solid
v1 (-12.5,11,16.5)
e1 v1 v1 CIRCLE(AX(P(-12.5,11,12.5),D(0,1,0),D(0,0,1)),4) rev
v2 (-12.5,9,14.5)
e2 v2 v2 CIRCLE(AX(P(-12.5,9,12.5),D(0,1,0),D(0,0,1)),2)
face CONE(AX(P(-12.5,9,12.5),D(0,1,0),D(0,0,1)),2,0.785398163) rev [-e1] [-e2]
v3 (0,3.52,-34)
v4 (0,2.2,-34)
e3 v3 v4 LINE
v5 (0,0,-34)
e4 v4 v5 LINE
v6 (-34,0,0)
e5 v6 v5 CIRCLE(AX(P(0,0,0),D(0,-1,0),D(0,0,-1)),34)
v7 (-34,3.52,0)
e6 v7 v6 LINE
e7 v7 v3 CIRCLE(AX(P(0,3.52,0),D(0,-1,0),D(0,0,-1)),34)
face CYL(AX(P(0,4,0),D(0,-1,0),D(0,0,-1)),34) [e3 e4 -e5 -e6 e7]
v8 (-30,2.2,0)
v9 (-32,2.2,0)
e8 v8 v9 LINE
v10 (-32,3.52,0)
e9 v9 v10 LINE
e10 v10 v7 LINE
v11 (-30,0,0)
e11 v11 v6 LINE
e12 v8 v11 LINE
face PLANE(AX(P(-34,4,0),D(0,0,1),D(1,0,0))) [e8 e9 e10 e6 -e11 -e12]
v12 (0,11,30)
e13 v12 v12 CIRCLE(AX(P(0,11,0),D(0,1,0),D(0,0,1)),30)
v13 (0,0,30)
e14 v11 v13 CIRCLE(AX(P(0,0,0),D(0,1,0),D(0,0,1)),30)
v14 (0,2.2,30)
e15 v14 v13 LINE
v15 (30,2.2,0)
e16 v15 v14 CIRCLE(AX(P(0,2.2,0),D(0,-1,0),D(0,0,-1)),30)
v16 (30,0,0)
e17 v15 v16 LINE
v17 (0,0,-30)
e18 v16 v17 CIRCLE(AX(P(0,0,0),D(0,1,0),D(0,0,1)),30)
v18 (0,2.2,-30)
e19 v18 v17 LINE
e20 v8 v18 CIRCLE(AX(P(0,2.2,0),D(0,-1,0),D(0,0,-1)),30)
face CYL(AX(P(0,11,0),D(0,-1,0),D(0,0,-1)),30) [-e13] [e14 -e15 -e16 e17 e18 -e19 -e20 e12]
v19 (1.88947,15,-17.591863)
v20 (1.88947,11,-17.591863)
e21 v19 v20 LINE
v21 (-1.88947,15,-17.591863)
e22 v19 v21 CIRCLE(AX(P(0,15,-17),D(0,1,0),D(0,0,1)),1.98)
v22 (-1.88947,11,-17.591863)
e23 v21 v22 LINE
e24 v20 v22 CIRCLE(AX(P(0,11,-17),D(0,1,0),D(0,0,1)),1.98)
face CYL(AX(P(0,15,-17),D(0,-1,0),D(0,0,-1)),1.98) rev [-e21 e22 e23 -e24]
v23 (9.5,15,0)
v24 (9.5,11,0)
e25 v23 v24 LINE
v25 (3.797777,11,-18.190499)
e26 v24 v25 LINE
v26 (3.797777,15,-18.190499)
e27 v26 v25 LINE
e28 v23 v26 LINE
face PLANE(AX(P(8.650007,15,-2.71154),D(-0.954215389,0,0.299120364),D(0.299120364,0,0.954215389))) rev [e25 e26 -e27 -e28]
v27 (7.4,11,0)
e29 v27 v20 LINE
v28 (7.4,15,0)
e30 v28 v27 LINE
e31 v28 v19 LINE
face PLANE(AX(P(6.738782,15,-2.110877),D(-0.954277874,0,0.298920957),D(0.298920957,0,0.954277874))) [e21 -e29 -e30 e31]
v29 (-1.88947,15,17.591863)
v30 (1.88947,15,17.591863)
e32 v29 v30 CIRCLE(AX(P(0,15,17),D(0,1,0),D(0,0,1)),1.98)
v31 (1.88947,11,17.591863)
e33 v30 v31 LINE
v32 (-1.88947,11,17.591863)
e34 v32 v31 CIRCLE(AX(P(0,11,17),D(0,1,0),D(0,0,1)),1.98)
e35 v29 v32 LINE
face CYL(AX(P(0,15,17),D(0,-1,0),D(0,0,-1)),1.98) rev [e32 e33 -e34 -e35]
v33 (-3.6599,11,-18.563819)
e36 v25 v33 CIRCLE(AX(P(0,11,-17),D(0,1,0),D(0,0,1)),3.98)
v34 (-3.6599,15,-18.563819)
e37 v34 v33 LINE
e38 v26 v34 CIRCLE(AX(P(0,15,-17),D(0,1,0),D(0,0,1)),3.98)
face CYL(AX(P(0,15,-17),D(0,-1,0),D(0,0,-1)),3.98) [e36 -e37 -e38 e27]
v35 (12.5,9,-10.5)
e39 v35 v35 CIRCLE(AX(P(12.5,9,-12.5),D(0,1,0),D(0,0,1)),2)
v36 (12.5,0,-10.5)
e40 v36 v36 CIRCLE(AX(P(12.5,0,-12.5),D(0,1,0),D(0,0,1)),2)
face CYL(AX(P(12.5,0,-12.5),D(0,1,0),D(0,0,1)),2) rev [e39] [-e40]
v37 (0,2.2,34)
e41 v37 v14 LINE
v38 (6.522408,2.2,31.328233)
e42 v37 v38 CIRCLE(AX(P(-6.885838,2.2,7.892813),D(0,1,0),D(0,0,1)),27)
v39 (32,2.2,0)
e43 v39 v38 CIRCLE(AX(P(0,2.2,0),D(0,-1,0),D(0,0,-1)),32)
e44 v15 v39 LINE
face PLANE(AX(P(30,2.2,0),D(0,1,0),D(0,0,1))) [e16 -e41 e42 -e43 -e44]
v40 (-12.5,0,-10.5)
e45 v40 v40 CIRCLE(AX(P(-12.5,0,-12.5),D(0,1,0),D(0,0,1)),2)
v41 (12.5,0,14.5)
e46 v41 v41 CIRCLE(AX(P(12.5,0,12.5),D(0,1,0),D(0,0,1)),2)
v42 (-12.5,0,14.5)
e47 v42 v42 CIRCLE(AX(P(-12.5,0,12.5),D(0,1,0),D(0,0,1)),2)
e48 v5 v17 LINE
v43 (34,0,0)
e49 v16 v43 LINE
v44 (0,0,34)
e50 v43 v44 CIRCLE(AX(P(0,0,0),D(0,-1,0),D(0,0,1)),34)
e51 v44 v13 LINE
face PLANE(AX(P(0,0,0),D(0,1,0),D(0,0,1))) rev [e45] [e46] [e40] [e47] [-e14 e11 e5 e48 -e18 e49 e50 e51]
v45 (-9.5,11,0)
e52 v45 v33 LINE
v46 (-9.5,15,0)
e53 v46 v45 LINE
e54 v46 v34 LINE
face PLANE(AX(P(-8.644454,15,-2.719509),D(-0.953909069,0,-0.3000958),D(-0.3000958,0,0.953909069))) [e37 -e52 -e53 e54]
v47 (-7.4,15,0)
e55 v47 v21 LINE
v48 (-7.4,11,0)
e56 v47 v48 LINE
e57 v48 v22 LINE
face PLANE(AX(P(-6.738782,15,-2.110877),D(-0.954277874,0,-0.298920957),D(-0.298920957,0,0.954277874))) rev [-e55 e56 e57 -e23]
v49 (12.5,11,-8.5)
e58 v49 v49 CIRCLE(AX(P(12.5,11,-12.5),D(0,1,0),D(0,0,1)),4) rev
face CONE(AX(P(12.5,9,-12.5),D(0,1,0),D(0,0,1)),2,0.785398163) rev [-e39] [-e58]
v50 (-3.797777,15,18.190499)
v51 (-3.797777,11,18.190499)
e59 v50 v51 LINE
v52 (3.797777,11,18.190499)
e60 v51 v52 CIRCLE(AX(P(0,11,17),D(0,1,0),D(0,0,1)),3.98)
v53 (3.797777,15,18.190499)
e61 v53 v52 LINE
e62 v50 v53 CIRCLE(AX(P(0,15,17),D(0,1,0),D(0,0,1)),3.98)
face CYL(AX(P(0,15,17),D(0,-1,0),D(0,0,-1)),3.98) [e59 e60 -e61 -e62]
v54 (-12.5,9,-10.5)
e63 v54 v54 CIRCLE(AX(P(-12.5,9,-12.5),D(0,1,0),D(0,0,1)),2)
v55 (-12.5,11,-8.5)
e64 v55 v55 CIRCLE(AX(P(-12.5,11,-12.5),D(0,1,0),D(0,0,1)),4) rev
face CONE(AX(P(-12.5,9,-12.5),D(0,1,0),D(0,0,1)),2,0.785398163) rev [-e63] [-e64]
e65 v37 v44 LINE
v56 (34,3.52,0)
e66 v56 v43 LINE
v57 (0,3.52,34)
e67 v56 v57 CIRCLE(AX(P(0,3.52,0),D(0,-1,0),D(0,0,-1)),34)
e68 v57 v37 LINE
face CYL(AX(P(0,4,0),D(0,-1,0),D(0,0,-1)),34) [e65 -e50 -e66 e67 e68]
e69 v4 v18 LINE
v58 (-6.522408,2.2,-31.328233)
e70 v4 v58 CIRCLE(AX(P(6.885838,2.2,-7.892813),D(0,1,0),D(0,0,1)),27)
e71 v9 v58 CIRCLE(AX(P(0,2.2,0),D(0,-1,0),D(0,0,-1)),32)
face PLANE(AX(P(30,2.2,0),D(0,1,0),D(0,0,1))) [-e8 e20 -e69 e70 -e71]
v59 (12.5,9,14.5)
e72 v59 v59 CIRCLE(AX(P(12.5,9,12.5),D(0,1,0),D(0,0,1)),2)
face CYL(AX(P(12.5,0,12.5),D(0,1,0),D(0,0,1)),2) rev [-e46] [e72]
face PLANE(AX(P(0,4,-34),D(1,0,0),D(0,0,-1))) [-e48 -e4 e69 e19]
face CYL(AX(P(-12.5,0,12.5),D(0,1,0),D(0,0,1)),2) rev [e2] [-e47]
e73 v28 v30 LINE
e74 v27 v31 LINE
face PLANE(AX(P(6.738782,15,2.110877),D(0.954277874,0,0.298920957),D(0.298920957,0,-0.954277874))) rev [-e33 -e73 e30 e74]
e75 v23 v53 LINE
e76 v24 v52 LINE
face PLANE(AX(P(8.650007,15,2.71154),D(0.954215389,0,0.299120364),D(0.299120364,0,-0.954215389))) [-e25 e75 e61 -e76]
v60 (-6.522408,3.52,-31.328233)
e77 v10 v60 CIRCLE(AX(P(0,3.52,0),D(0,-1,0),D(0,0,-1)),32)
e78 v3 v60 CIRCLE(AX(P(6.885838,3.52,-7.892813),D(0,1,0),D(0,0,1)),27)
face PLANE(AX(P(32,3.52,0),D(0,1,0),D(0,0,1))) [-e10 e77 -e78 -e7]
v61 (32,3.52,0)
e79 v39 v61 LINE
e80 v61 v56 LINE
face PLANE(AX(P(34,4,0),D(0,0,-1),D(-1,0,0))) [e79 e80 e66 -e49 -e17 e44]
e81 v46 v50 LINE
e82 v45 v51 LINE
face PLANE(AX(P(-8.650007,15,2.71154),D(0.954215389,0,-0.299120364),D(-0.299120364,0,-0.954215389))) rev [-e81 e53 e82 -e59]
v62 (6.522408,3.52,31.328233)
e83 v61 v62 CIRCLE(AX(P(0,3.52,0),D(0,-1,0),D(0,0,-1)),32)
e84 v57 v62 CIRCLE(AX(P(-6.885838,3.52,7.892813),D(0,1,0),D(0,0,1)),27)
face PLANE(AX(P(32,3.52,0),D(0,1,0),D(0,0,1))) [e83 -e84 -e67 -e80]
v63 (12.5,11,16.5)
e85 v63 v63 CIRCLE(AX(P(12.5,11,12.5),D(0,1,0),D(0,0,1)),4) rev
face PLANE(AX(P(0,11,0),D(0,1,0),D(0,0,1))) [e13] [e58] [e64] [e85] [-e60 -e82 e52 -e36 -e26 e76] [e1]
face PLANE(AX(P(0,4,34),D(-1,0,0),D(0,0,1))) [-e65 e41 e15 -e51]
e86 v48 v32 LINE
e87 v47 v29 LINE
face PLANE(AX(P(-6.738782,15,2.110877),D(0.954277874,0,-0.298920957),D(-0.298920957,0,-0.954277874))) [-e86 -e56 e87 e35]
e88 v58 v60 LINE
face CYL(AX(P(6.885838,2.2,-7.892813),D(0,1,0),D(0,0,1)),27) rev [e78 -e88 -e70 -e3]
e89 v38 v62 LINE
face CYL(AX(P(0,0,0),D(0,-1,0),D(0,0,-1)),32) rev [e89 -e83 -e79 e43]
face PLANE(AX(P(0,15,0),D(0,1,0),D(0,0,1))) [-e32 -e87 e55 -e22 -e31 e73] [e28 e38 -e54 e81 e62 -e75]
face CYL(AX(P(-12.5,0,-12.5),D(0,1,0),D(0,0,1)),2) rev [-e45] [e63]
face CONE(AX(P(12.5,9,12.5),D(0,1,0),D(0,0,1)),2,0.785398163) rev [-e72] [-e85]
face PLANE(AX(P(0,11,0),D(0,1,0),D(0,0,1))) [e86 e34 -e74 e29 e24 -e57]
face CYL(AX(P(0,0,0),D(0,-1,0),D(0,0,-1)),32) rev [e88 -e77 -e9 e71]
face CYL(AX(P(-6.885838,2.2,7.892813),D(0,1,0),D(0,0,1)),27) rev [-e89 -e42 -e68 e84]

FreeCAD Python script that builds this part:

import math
import FreeCAD as App
import Part
import Sketcher

V = App.Vector


def edges_at(feature, points):
    """Names of the edges that pass closest to the given points."""
    edges = feature.Shape.Edges
    near = lambda p: min(range(len(edges)), key=lambda i: edges[i].distToShape(Part.Vertex(*p))[0])
    return sorted({f"Edge{near(p) + 1}" for p in points})


def add_polygon(sketch, points):
    """Adds a closed chain of lines whose ends are joined by coincident constraints."""
    first, n = sketch.GeometryCount, len(points)
    for a, b in zip(points, points[1:] + points[:1]):
        sketch.addGeometry(Part.LineSegment(App.Vector(*a, 0), App.Vector(*b, 0)), False)
    for i in range(n):
        sketch.addConstraint(Sketcher.Constraint("Coincident", first + i, 2, first + (i + 1) % n, 1))

doc = App.newDocument("Part")
body = doc.addObject("PartDesign::Body", "Body")

sketch1 = body.newObject("Sketcher::SketchObject", "Sketch")
sketch1.AttachmentSupport = (doc.getObject("XZ_Plane"), [""])
sketch1.MapMode = "FlatFace"
sketch1.addGeometry(Part.Circle(V(0, 0, 0), V(0, 0, 1), 30), False)
sketch1.addConstraint([
    Sketcher.Constraint("Coincident", 0, 3, -1, 1),
    Sketcher.Constraint("Diameter", 0, 60.0),
])
pad1 = body.newObject("PartDesign::Pad", "Pad")
pad1.Profile = sketch1
pad1.Length = 11
pad1.Reversed = True

sketch2 = body.newObject("Sketcher::SketchObject", "Sketch001")
sketch2.AttachmentSupport = (doc.getObject("XZ_Plane"), [""])
sketch2.MapMode = "FlatFace"
sketch2.addGeometry([
    Part.LineSegment(V(-30, 0, 0), V(-34, 0, 0)),
    Part.ArcOfCircle(Part.Circle(V(0, 0, 0), V(0, 0, 1), 34), math.radians(-180), math.radians(-90)),
    Part.LineSegment(V(0, -34, 0), V(0, -30, 0)),
    Part.ArcOfCircle(Part.Circle(V(0, 0, 0), V(0, 0, 1), 30), math.radians(180), math.radians(270)),
    Part.LineSegment(V(0, 34, 0), V(0, 30, 0)),
    Part.ArcOfCircle(Part.Circle(V(0, 0, 0), V(0, 0, 1), 30), math.radians(0), math.radians(90)),
    Part.LineSegment(V(30, 0, 0), V(34, 0, 0)),
    Part.ArcOfCircle(Part.Circle(V(0, 0, 0), V(0, 0, 1), 34), math.radians(0), math.radians(90)),
], False)
sketch2.addConstraint([
    Sketcher.Constraint("Coincident", 0, 2, 1, 1),
    Sketcher.Constraint("Coincident", 1, 2, 2, 1),
    Sketcher.Constraint("Coincident", 2, 2, 3, 2),
    Sketcher.Constraint("Coincident", 3, 1, 0, 1),
    Sketcher.Constraint("Coincident", 4, 2, 5, 2),
    Sketcher.Constraint("Coincident", 5, 1, 6, 1),
    Sketcher.Constraint("Coincident", 6, 2, 7, 1),
    Sketcher.Constraint("Coincident", 7, 2, 4, 1),
    Sketcher.Constraint("Horizontal", 0),
    Sketcher.Constraint("Vertical", 2),
    Sketcher.Constraint("Vertical", 4),
    Sketcher.Constraint("Horizontal", 6),
    Sketcher.Constraint("Coincident", 1, 3, -1, 1),
    Sketcher.Constraint("Coincident", 3, 3, -1, 1),
    Sketcher.Constraint("Coincident", 5, 3, -1, 1),
    Sketcher.Constraint("Coincident", 7, 3, -1, 1),
    Sketcher.Constraint("Equal", 3, 5),
    Sketcher.Constraint("Equal", 1, 7),
    Sketcher.Constraint("PointOnObject", 0, 2, -1),
    Sketcher.Constraint("PointOnObject", 1, 2, -2),
    Sketcher.Constraint("PointOnObject", 4, 2, -2),
    Sketcher.Constraint("PointOnObject", 5, 1, -1),
    Sketcher.Constraint("Radius", 1, 34.0),
    Sketcher.Constraint("Radius", 3, 30.0),
])
pad2 = body.newObject("PartDesign::Pad", "Pad001")
pad2.Profile = sketch2
pad2.Length = 4
pad2.Reversed = True

sketch3 = body.newObject("Sketcher::SketchObject", "Sketch002")
sketch3.AttachmentSupport = (doc.getObject("XY_Plane"), [""])
sketch3.MapMode = "FlatFace"
add_polygon(sketch3, [(32, 2.2), (30, 2.2), (30, 4), (34, 4), (34, 3.52), (32, 3.52)])
sketch3.addConstraint([
    Sketcher.Constraint("Horizontal", 0),
    Sketcher.Constraint("Vertical", 1),
    Sketcher.Constraint("Horizontal", 2),
    Sketcher.Constraint("Vertical", 3),
    Sketcher.Constraint("Horizontal", 4),
    Sketcher.Constraint("Vertical", 5),
    Sketcher.Constraint("Equal", 0, 4),
    Sketcher.Constraint("DistanceX", 0, 2, 0, 1, 2.0),
    Sketcher.Constraint("DistanceY", 1, 1, 1, 2, 1.8),
    Sketcher.Constraint("DistanceX", -1, 1, 0, 2, 30.0),
    Sketcher.Constraint("DistanceY", -1, 1, 1, 2, 4.0),
    Sketcher.Constraint("DistanceY", 3, 2, 3, 1, 0.48),
])
groove = body.newObject("PartDesign::Groove", "Groove")
groove.Profile = sketch3
groove.ReferenceAxis = (sketch3, ["V_Axis"])
groove.Angle = 360

sketch4 = body.newObject("Sketcher::SketchObject", "Sketch003")
sketch4.AttachmentSupport = (doc.getObject("XZ_Plane"), [""])
sketch4.MapMode = "FlatFace"
sketch4.AttachmentOffset = App.Placement(V(0, 0, -3.52), App.Rotation())
sketch4.addGeometry([
    Part.LineSegment(V(6.522408, 31.328233, 0), V(-2.191886, 31.444459, 0)),
    Part.LineSegment(V(-2.191886, 31.444459, 0), V(0, 34, 0)),
    Part.ArcOfCircle(Part.Circle(V(-6.885838, 7.892813, 0), V(0, 0, 1), 27), math.radians(60.224576), math.radians(75.224576)),
    Part.LineSegment(V(-6.522408, -31.328233, 0), V(2.581044, -31.031256, 0)),
    Part.LineSegment(V(2.581044, -31.031256, 0), V(0, -34, 0)),
    Part.ArcOfCircle(Part.Circle(V(6.885838, -7.892813, 0), V(0, 0, 1), 27), math.radians(-119.775424), math.radians(-104.775424)),
], False)
sketch4.addConstraint([
    Sketcher.Constraint("Coincident", 0, 2, 1, 1),
    Sketcher.Constraint("Coincident", 1, 2, 2, 2),
    Sketcher.Constraint("Coincident", 2, 1, 0, 1),
    Sketcher.Constraint("Coincident", 3, 2, 4, 1),
    Sketcher.Constraint("Coincident", 4, 2, 5, 2),
    Sketcher.Constraint("Coincident", 5, 1, 3, 1),
    Sketcher.Constraint("Equal", 2, 5),
    Sketcher.Constraint("Symmetric", 2, 3, 5, 3, -1, 1),
    Sketcher.Constraint("Symmetric", 1, 2, 4, 2, -1),
    Sketcher.Constraint("Radius", 2, 27.0),
    Sketcher.Constraint("DistanceY", -1, 1, 1, 2, 34.0),
    Sketcher.Constraint("Distance", 0, 8.715069),
    Sketcher.Constraint("DistanceY", -1, 1, 0, 2, 31.444459),
    Sketcher.Constraint("DistanceX", -1, 1, 2, 1, 6.522408),
    Sketcher.Constraint("DistanceX", 5, 1, -1, 1, 6.522408),
    Sketcher.Constraint("DistanceX", 2, 3, 0, 2, 4.693952),
    Sketcher.Constraint("DistanceY", 3, 2, 2, 3, 38.924069),
    Sketcher.Constraint("DistanceX", 0, 2, 3, 2, 4.77293),
])
pocket1 = body.newObject("PartDesign::Pocket", "Pocket")
pocket1.Profile = sketch4
pocket1.Length = 1.32
pocket1.Reversed = True

sketch5 = body.newObject("Sketcher::SketchObject", "Sketch004")
sketch5.AttachmentSupport = (doc.getObject("XZ_Plane"), [""])
sketch5.MapMode = "FlatFace"
sketch5.AttachmentOffset = App.Placement(V(0, 0, -11), App.Rotation())
sketch5.addGeometry([
    Part.ArcOfCircle(Part.Circle(V(12.5, -12.5, 0), V(0, 0, 1), 2), math.radians(-90), math.radians(0)),
    Part.ArcOfCircle(Part.Circle(V(12.5, -12.5, 0), V(0, 0, 1), 2), math.radians(90), math.radians(270)),
    Part.ArcOfCircle(Part.Circle(V(12.5, -12.5, 0), V(0, 0, 1), 2), math.radians(0), math.radians(90)),
    Part.ArcOfCircle(Part.Circle(V(-12.5, 12.5, 0), V(0, 0, 1), 2), math.radians(90), math.radians(180)),
    Part.ArcOfCircle(Part.Circle(V(-12.5, 12.5, 0), V(0, 0, 1), 2), math.radians(0), math.radians(90)),
    Part.ArcOfCircle(Part.Circle(V(-12.5, 12.5, 0), V(0, 0, 1), 2), math.radians(-90), math.radians(0)),
    Part.ArcOfCircle(Part.Circle(V(-12.5, 12.5, 0), V(0, 0, 1), 2), math.radians(-180), math.radians(-90)),
    Part.Circle(V(12.5, 12.5, 0), V(0, 0, 1), 2),
    Part.Circle(V(-12.5, -12.5, 0), V(0, 0, 1), 2),
], False)
sketch5.addConstraint([
    Sketcher.Constraint("Tangent", 0, 1, 1, 2),
    Sketcher.Constraint("Tangent", 1, 1, 2, 2),
    Sketcher.Constraint("Tangent", 2, 1, 0, 2),
    Sketcher.Constraint("Tangent", 3, 1, 4, 2),
    Sketcher.Constraint("Tangent", 4, 1, 5, 2),
    Sketcher.Constraint("Tangent", 5, 1, 6, 2),
    Sketcher.Constraint("Tangent", 6, 1, 3, 2),
    Sketcher.Constraint("Equal", 2, 3),
    Sketcher.Constraint("Equal", 3, 4),
    Sketcher.Constraint("Equal", 6, 7),
    Sketcher.Constraint("Equal", 7, 8),
    Sketcher.Constraint("Symmetric", 0, 3, 3, 3, -1, 1),
    Sketcher.Constraint("Symmetric", 7, 3, 8, 3, -1, 1),
    Sketcher.Constraint("Symmetric", 3, 3, 7, 3, -2),
    Sketcher.Constraint("Horizontal", 8, 3, 2, 1),
    Sketcher.Constraint("Horizontal", 7, 3, 4, 1),
    Sketcher.Constraint("Horizontal", 4, 1, 6, 1),
    Sketcher.Constraint("Vertical", 7, 3, 0, 1),
    Sketcher.Constraint("Vertical", 0, 1, 1, 1),
    Sketcher.Constraint("Vertical", 8, 3, 3, 1),
    Sketcher.Constraint("Vertical", 3, 1, 5, 1),
    Sketcher.Constraint("Diameter", 7, 4.0),
    Sketcher.Constraint("DistanceX", 3, 3, 0, 3, 25.0),
    Sketcher.Constraint("DistanceY", 0, 3, 3, 3, 25.0),
])
pocket2 = body.newObject("PartDesign::Pocket", "Pocket001")
pocket2.Profile = sketch5
pocket2.Type = "ThroughAll"
pocket2.Reversed = True
doc.recompute()

chamfer = body.newObject("PartDesign::Chamfer", "Chamfer")
chamfer.Base = (pocket2, edges_at(pocket2, [
    (-12.5, 11, -14.5),
    (12.5, 11, 10.5),
    (-13.914, 11, 11.086),
    (10.5, 11, -12.5),
]))
chamfer.Size = 2

sketch6 = body.newObject("Sketcher::SketchObject", "Sketch005")
sketch6.AttachmentSupport = (doc.getObject("XZ_Plane"), [""])
sketch6.MapMode = "FlatFace"
sketch6.AttachmentOffset = App.Placement(V(0, 0, -11), App.Rotation())
sketch6.addGeometry([
    Part.LineSegment(V(-3.896028, -17.813244, 0), V(-9.5, 0, 0)),
    Part.LineSegment(V(-9.5, 0, 0), V(-3.797777, 18.190499, 0)),
    Part.ArcOfCircle(Part.Circle(V(0, 17, 0), V(0, 0, 1), 3.98), math.radians(17.404778), math.radians(162.595222)),
    Part.LineSegment(V(3.797777, 18.190499, 0), V(9.5, 0, 0)),
    Part.LineSegment(V(9.5, 0, 0), V(3.797777, -18.190499, 0)),
    Part.ArcOfCircle(Part.Circle(V(0, -17, 0), V(0, 0, 1), 3.98), math.radians(-156.863723), math.radians(-17.404778)),
    Part.LineSegment(V(-3.6599, -18.563819, 0), V(-3.896028, -17.813244, 0)),
    Part.ArcOfCircle(Part.Circle(V(0, 17, 0), V(0, 0, 1), 1.98), math.radians(17.392805), math.radians(162.607195)),
    Part.LineSegment(V(-1.88947, 17.591863, 0), V(-7.4, 0, 0)),
    Part.LineSegment(V(-7.4, 0, 0), V(-1.88947, -17.591863, 0)),
    Part.ArcOfCircle(Part.Circle(V(0, -17, 0), V(0, 0, 1), 1.98), math.radians(-162.607195), math.radians(-17.392805)),
    Part.LineSegment(V(1.88947, -17.591863, 0), V(7.4, 0, 0)),
    Part.LineSegment(V(7.4, 0, 0), V(1.88947, 17.591863, 0)),
], False)
sketch6.addConstraint([
    Sketcher.Constraint("Coincident", 0, 2, 1, 1),
    Sketcher.Constraint("Tangent", 1, 2, 2, 2),
    Sketcher.Constraint("Tangent", 2, 1, 3, 1),
    Sketcher.Constraint("Coincident", 3, 2, 4, 1),
    Sketcher.Constraint("Tangent", 4, 2, 5, 2),
    Sketcher.Constraint("Coincident", 5, 1, 6, 1),
    Sketcher.Constraint("Coincident", 6, 2, 0, 1),
    Sketcher.Constraint("Tangent", 7, 2, 8, 1),
    Sketcher.Constraint("Coincident", 8, 2, 9, 1),
    Sketcher.Constraint("Tangent", 9, 2, 10, 1),
    Sketcher.Constraint("Tangent", 10, 2, 11, 1),
    Sketcher.Constraint("Coincident", 11, 2, 12, 1),
    Sketcher.Constraint("Tangent", 12, 2, 7, 1),
    Sketcher.Constraint("Coincident", 7, 3, 2, 3),
    Sketcher.Constraint("Coincident", 10, 3, 5, 3),
    Sketcher.Constraint("Equal", 2, 5),
    Sketcher.Constraint("Equal", 7, 10),
    Sketcher.Constraint("Symmetric", 2, 3, 5, 3, -1, 1),
    Sketcher.Constraint("Symmetric", 0, 2, 3, 2, -1, 1),
    Sketcher.Constraint("Symmetric", 8, 2, 11, 2, -1, 1),
    Sketcher.Constraint("Symmetric", 1, 2, 2, 1, -2),
    Sketcher.Constraint("PointOnObject", 8, 2, -1),
    Sketcher.Constraint("Parallel", 0, 6),
    Sketcher.Constraint("Radius", 2, 3.98),
    Sketcher.Constraint("Radius", 7, 1.98),
    Sketcher.Constraint("DistanceY", -1, 1, 2, 3, 17.0),
    Sketcher.Constraint("DistanceX", 0, 2, 3, 2, 19.0),
    Sketcher.Constraint("DistanceX", 8, 2, -1, 1, 7.4),
    Sketcher.Constraint("DistanceX", 5, 1, -1, 1, 3.6599),
    Sketcher.Constraint("Distance", 6, 0.786841),
])
pad3 = body.newObject("PartDesign::Pad", "Pad002")
pad3.Profile = sketch6
pad3.Length = 4
pad3.Reversed = True

doc.recompute()
